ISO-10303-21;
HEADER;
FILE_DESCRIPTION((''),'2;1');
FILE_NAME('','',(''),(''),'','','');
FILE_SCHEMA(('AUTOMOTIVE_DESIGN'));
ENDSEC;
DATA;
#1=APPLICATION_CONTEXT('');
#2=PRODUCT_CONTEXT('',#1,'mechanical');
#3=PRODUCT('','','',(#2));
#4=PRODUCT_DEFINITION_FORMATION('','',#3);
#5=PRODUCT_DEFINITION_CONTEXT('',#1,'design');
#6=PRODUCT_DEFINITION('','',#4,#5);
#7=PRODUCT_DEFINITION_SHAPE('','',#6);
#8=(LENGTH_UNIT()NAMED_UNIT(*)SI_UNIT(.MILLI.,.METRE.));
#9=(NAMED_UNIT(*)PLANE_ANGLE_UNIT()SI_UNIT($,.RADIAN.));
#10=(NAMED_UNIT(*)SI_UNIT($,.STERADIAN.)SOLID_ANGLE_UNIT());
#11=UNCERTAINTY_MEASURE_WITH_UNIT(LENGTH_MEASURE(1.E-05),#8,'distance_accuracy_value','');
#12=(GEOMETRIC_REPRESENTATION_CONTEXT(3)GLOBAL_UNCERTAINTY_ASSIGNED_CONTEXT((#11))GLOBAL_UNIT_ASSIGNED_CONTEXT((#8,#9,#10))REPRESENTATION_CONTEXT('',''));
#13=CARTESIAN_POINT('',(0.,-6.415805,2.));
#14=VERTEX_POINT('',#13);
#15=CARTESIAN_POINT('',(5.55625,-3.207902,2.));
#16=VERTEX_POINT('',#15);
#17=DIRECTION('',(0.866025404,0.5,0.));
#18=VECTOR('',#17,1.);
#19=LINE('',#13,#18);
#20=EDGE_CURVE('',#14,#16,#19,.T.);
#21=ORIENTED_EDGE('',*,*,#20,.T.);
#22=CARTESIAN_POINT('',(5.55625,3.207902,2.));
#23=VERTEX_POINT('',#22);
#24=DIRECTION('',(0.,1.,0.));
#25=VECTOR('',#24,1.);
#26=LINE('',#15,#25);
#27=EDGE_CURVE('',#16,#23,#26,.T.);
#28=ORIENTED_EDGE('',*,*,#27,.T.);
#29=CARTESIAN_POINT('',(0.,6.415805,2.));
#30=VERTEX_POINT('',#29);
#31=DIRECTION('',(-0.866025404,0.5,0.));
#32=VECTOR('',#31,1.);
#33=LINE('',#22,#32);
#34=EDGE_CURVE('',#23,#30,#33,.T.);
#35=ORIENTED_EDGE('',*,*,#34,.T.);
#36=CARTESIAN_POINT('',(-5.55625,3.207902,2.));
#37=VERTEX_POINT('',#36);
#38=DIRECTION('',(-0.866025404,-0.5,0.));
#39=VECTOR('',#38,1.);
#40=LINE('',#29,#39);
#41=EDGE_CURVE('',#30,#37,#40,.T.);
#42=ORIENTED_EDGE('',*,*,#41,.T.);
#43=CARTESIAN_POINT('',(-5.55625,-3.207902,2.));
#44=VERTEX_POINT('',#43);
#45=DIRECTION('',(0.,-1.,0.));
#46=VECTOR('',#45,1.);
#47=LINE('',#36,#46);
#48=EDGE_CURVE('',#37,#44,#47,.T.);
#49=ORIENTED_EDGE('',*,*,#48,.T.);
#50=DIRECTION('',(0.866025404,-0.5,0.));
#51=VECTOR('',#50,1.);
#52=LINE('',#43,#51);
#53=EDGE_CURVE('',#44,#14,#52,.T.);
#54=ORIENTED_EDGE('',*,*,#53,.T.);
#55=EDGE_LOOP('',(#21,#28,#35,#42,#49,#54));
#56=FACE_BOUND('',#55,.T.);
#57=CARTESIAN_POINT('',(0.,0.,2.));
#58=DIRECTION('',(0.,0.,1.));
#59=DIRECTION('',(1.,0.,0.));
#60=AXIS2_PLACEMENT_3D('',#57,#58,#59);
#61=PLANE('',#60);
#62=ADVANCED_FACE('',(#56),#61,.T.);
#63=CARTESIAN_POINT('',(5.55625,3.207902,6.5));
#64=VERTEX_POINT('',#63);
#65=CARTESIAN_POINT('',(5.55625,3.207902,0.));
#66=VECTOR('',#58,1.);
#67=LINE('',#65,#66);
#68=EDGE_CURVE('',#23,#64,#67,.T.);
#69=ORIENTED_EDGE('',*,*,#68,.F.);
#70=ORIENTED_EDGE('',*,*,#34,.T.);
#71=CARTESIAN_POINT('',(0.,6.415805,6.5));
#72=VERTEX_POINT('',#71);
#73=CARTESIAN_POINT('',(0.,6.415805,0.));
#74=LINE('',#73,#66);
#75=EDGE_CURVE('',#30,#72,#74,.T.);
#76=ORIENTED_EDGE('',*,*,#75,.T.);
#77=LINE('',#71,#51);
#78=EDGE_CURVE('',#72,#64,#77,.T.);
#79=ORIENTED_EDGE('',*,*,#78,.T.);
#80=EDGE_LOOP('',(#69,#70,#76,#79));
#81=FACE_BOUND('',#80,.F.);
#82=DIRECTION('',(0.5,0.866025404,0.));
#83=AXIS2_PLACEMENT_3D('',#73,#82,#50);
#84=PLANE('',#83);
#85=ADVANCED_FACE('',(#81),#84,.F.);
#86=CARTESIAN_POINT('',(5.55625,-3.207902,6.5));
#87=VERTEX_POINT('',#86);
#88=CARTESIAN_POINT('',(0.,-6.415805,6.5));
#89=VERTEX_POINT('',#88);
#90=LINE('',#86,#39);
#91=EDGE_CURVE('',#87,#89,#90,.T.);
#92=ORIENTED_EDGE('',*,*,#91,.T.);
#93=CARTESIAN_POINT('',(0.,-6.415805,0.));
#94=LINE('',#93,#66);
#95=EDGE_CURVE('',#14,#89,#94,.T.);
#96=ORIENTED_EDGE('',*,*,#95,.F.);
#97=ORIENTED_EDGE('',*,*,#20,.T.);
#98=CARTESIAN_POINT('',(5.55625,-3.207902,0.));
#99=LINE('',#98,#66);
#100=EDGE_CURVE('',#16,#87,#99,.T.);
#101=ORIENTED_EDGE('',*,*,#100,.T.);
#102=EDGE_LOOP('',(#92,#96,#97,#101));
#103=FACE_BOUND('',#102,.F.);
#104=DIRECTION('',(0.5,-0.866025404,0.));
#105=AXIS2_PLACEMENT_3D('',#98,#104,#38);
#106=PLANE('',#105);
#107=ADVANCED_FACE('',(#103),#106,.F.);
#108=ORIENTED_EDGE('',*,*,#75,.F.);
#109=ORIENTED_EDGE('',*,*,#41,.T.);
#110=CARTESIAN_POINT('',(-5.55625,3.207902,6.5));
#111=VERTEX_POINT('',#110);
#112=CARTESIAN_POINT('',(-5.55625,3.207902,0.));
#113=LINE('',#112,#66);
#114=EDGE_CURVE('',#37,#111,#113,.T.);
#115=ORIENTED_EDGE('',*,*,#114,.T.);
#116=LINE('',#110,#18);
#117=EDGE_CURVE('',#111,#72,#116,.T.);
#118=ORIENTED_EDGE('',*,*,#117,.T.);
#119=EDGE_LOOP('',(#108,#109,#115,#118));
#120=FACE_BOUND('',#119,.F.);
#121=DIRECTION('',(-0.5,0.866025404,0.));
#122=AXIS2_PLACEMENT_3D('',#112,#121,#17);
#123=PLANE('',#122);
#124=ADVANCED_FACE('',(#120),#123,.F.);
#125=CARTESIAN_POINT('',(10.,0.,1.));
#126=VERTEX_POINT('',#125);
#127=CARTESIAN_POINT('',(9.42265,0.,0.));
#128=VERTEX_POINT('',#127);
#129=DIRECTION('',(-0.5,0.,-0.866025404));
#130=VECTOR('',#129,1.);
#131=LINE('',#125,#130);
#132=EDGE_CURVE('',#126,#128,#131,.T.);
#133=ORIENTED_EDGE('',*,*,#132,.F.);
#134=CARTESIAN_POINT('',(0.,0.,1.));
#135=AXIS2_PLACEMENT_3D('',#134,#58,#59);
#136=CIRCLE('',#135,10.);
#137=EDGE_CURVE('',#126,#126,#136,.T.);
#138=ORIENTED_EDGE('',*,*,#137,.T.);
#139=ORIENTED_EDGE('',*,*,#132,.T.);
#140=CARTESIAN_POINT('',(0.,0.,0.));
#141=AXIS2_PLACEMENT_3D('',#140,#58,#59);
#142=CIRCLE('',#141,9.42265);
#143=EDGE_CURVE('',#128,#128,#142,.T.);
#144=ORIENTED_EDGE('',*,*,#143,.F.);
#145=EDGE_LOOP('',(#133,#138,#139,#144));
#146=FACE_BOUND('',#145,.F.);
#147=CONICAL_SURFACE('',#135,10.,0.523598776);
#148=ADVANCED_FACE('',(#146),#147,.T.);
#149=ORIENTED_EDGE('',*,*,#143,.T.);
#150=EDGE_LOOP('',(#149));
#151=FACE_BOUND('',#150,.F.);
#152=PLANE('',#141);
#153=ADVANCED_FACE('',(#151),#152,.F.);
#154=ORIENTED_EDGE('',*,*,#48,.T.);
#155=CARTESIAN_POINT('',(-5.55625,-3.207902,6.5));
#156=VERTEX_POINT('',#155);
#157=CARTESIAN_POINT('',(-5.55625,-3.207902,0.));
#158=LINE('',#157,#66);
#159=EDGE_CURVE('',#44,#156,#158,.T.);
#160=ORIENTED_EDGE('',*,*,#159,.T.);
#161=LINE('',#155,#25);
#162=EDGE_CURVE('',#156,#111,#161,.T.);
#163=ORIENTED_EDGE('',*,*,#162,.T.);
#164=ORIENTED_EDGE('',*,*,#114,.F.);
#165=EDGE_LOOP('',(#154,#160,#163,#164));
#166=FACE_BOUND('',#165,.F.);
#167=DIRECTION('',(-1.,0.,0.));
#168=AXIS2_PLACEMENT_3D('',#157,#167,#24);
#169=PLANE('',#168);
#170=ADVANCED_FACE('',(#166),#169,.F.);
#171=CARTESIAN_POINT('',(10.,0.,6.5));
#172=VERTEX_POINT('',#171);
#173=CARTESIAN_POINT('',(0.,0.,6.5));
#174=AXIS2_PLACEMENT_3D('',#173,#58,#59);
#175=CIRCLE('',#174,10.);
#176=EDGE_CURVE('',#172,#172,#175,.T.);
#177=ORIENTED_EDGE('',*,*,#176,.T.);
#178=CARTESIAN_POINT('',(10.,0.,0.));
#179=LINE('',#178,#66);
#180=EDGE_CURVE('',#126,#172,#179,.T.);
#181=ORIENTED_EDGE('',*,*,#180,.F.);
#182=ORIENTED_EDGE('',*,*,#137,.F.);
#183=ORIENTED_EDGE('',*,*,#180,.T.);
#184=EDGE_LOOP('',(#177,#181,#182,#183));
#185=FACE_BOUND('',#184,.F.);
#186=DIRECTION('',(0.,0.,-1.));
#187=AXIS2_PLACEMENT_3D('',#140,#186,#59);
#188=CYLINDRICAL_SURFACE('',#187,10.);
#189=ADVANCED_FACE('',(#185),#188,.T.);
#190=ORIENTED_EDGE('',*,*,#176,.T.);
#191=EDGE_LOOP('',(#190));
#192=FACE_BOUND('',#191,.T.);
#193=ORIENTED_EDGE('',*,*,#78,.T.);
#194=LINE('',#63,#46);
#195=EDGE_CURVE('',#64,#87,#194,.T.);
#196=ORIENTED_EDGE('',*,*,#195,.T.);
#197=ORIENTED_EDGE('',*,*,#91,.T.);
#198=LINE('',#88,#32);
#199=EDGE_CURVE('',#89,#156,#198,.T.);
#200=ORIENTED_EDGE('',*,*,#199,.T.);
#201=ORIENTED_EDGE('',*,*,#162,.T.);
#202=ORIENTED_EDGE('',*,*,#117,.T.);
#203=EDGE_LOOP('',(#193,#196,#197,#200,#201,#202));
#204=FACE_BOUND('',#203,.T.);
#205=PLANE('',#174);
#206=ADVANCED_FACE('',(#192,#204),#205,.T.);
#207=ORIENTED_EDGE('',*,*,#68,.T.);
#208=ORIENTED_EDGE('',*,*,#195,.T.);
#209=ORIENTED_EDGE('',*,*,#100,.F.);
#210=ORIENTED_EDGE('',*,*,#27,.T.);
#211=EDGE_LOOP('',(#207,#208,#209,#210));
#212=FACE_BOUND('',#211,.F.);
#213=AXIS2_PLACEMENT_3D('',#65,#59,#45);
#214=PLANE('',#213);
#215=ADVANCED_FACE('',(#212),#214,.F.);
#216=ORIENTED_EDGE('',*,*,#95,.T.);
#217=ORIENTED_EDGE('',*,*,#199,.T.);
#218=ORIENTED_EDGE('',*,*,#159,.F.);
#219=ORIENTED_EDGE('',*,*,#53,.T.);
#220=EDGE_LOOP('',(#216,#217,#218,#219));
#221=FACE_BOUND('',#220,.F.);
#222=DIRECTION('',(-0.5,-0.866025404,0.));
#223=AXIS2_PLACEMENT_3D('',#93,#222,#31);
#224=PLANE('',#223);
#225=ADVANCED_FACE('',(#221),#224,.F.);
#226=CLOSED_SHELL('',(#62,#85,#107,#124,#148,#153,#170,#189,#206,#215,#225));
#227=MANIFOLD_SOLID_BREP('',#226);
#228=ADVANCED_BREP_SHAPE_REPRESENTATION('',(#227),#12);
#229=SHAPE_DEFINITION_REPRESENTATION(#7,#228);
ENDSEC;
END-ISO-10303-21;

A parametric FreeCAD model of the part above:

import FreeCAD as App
import Part
import Sketcher
from FreeCAD import Vector
Q = App.Units.Quantity


def edges_at(feature, points):
    """Names of the edges that pass closest to the given points."""
    edges = feature.Shape.Edges
    near = lambda p: min(range(len(edges)), key=lambda i: edges[i].distToShape(Part.Vertex(*p))[0])
    return sorted({f"Edge{near(p) + 1}" for p in points})


def add_polygon(sketch, points):
    """Adds a closed chain of lines whose ends are joined by coincident constraints."""
    first, n = sketch.GeometryCount, len(points)
    for a, b in zip(points, points[1:] + points[:1]):
        sketch.addGeometry(Part.LineSegment(App.Vector(*a, 0), App.Vector(*b, 0)), False)
    for i in range(n):
        sketch.addConstraint(Sketcher.Constraint("Coincident", first + i, 2, first + (i + 1) % n, 1))

doc = App.newDocument("Part")
params = doc.addObject("Spreadsheet::Sheet", "Params")
for row, (alias, value) in enumerate([
    ("sketch1_diameter", "20 mm"),
    ("pad1_length", "6.5 mm"),
    ("pad2_length", "2 mm"),
    ("chamfer_size", "1 mm"),
    ("chamfer_size2", "0.57735 mm"),
], start=1):
    params.set(f"A{row}", alias)
    params.set(f"B{row}", "=" + value)
    params.setAlias(f"B{row}", alias)

body = doc.addObject("PartDesign::Body", "Body")

# Sketch on XY plane
sketch1 = doc.addObject("Sketcher::SketchObject", "Sketch")
body.addObject(sketch1)
sketch1.AttachmentSupport = (doc.XY_Plane, [""])
sketch1.MapMode = "FlatFace"
sketch1.addGeometry(Part.Circle(Vector(0, 0, 0), Vector(0, 0, 1), 10), False)  # 0
add_polygon(sketch1, [(0, -6), (-6, -3), (-6, 3), (0, 6), (6, 3), (6, -3)])  # lines 1-6
sketch1.addConstraint([
    Sketcher.Constraint("Vertical", 2),
    Sketcher.Constraint("Vertical", 5),
    Sketcher.Constraint("Coincident", 0, 3, -1, 1),
    Sketcher.Constraint("Symmetric", 1, 2, 4, 2, -1, 1),
    Sketcher.Constraint("Symmetric", 3, 2, 6, 2, -1, 1),
    Sketcher.Constraint("PointOnObject", 3, 2, -2),
    Sketcher.Constraint("Parallel", 3, 6),
    Sketcher.Constraint("Horizontal", 2, 2, 4, 2),
    Sketcher.Constraint("Diameter", 0, Q("20 mm")),
    Sketcher.Constraint("Angle", 1, Q("150 deg")),
    Sketcher.Constraint("DistanceX", 2, 2, 4, 2, Q("11.1125 mm")),
    Sketcher.Constraint("DistanceY", 2, 1, 2, 2, Q("6.415805 mm")),
])
sketch1.setExpression("Constraints[14]", "Params.sketch1_diameter")
pad1 = doc.addObject("PartDesign::Pad", "Pad")
body.addObject(pad1)
pad1.Profile = sketch1
pad1.setExpression("Length", "Params.pad1_length")

# Sketch on XY plane
sketch2 = doc.addObject("Sketcher::SketchObject", "Sketch001")
body.addObject(sketch2)
sketch2.AttachmentSupport = (doc.XY_Plane, [""])
sketch2.MapMode = "FlatFace"
add_polygon(sketch2, [(0, 6), (-6, 3), (-6, -3), (0, -6), (6, -3), (6, 3)])  # lines 0-5
sketch2.addConstraint([
    Sketcher.Constraint("Vertical", 1),
    Sketcher.Constraint("Vertical", 4),
    Sketcher.Constraint("Symmetric", 0, 2, 3, 2, -1, 1),
    Sketcher.Constraint("Symmetric", 2, 2, 5, 2, -1, 1),
    Sketcher.Constraint("PointOnObject", 2, 2, -2),
    Sketcher.Constraint("Parallel", 2, 5),
    Sketcher.Constraint("Horizontal", 1, 2, 3, 2),
    Sketcher.Constraint("Angle", 0, Q("-150 deg")),
    Sketcher.Constraint("DistanceX", 1, 2, 3, 2, Q("11.1125 mm")),
    Sketcher.Constraint("DistanceY", 1, 2, 1, 1, Q("6.415805 mm")),
])
pad2 = doc.addObject("PartDesign::Pad", "Pad001")
body.addObject(pad2)
pad2.Profile = sketch2
pad2.setExpression("Length", "Params.pad2_length")
doc.recompute()

chamfer = doc.addObject("PartDesign::Chamfer", "Chamfer")
body.addObject(chamfer)
chamfer.Base = (pad2, edges_at(pad2, [(-10, 0, 0)]))
chamfer.ChamferType = "Two distances"
chamfer.setExpression("Size", "Params.chamfer_size")
chamfer.setExpression("Size2", "Params.chamfer_size2")

doc.recompute()
